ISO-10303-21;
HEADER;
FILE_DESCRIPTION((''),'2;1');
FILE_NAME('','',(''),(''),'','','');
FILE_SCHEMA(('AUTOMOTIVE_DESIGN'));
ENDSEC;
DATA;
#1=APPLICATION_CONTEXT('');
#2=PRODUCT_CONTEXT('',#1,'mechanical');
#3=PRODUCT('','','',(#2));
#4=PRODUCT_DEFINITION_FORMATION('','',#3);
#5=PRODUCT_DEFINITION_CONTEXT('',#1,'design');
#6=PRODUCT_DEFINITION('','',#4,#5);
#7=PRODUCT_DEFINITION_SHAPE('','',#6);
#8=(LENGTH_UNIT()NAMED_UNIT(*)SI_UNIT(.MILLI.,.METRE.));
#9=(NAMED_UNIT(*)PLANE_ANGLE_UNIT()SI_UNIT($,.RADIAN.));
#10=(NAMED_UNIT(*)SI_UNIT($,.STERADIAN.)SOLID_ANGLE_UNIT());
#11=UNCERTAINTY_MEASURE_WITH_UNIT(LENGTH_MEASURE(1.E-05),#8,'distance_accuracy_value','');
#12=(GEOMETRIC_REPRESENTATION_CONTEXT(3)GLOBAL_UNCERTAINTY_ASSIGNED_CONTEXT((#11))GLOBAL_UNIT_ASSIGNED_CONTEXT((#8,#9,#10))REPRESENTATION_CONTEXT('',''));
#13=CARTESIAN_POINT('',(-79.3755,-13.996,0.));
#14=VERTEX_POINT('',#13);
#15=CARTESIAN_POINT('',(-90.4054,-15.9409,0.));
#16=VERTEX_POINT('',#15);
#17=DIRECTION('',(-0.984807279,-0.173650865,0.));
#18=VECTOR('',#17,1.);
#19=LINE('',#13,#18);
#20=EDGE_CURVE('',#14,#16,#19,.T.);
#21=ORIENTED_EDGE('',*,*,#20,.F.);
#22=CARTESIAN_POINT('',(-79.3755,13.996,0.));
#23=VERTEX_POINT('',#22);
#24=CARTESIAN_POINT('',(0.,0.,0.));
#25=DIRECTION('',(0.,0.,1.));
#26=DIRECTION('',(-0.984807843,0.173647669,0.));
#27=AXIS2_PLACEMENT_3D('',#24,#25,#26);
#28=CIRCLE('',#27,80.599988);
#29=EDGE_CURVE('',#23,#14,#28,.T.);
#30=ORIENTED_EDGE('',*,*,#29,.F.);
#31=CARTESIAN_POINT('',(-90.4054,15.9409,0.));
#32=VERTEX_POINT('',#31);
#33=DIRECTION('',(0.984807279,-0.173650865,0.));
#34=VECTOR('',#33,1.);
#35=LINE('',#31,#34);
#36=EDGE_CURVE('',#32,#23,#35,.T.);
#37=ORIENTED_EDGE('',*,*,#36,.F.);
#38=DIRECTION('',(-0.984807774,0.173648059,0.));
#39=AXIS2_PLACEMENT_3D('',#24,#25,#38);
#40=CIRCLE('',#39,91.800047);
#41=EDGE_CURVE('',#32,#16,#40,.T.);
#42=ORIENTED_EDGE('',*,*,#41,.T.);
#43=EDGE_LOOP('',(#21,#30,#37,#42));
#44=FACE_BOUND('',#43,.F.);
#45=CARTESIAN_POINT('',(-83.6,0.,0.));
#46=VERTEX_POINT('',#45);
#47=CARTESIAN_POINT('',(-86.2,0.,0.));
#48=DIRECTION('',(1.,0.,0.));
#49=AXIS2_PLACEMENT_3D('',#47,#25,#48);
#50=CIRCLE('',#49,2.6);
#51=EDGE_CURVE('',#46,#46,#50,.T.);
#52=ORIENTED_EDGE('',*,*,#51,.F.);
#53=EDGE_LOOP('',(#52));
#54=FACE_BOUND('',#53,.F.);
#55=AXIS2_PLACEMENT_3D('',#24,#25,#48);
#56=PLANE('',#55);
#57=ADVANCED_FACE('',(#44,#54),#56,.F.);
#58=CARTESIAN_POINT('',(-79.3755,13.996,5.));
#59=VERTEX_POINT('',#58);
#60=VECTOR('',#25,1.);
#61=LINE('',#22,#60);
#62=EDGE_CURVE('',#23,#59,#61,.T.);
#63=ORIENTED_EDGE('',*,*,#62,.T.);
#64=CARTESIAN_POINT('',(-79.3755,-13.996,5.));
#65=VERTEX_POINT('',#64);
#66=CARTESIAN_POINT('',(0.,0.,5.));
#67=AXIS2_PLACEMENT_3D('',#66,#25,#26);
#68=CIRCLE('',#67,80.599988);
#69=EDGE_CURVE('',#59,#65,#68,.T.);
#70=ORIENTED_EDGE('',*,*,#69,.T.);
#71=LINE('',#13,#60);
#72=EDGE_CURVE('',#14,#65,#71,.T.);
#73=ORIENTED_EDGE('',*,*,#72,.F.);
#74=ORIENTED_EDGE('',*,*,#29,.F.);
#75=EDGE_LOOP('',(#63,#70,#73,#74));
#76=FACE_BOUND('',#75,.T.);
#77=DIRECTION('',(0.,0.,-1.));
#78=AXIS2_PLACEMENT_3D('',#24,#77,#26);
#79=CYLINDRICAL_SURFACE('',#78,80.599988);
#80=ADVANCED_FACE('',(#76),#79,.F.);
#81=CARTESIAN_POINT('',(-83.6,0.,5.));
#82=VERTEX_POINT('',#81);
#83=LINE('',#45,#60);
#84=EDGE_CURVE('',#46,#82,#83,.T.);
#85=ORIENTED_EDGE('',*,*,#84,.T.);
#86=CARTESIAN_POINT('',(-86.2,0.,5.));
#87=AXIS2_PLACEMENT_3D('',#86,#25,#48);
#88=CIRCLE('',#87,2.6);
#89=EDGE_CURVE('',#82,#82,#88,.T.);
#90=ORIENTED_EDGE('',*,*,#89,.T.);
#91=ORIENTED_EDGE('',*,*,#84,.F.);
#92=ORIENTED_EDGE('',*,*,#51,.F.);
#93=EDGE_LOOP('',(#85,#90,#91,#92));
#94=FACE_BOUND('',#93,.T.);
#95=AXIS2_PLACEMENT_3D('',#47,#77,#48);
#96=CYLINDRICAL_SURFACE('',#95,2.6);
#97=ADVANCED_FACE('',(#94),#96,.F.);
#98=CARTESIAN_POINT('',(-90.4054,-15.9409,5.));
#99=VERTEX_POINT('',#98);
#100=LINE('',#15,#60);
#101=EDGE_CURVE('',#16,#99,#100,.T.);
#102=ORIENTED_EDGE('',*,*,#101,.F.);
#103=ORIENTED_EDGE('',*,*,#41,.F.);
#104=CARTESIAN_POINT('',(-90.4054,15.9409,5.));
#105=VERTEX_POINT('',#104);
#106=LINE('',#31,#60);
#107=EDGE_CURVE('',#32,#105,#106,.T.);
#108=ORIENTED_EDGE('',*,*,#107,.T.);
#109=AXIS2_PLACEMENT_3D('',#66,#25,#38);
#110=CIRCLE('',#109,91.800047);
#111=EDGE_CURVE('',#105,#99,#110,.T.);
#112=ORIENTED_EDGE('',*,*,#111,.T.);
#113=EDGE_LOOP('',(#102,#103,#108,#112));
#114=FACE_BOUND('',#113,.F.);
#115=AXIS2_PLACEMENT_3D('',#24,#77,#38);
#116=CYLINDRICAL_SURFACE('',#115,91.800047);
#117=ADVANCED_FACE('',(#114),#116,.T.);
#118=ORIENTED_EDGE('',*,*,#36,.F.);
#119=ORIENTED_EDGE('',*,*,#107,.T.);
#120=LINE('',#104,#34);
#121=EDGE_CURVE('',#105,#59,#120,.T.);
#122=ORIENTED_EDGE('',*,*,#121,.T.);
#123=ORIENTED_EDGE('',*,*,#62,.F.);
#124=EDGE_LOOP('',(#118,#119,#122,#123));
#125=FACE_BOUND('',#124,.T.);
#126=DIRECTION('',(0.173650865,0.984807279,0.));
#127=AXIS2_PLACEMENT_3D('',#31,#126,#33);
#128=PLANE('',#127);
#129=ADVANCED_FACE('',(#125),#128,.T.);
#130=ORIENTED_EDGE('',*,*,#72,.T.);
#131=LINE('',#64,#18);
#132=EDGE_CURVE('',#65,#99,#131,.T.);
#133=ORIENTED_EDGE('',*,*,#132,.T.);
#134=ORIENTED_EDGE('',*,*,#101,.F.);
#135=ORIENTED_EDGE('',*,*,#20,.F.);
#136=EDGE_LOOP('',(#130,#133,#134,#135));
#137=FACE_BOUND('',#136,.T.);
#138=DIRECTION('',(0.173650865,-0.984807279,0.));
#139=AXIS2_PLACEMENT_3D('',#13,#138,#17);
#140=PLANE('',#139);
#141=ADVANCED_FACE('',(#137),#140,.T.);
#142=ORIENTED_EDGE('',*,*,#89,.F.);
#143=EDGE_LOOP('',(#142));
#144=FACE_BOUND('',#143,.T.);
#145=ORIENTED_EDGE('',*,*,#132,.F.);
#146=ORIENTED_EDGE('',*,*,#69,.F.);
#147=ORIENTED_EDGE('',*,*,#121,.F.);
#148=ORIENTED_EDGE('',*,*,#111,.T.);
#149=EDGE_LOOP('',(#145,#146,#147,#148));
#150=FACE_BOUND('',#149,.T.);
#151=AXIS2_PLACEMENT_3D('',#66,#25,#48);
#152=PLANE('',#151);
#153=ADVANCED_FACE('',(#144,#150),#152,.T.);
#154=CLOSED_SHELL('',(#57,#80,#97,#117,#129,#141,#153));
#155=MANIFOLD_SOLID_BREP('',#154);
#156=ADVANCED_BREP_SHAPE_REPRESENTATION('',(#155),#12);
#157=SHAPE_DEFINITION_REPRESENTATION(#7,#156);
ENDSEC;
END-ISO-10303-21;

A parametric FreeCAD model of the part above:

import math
import FreeCAD as App
import Part
import Sketcher
Q = App.Units.Quantity

doc = App.newDocument("Part")
body = doc.addObject("PartDesign::Body", "Body")

sketch1 = body.newObject("Sketcher::SketchObject", "Sketch")
sketch1.AttachmentSupport = (doc.getObject("XY_Plane"), [""])
sketch1.MapMode = "FlatFace"
sketch1.addGeometry([
    Part.LineSegment(App.Vector(-79.4, 14, 0), App.Vector(-90.4, 15.9, 0)),
    Part.ArcOfCircle(Part.Circle(App.Vector(0, 0, 0), App.Vector(0, 0, 1), 91.8), math.radians(170), math.radians(190)),
    Part.LineSegment(App.Vector(-90.4, -15.9, 0), App.Vector(-79.4, -14, 0)),
    Part.ArcOfCircle(Part.Circle(App.Vector(0, 0, 0), App.Vector(0, 0, 1), 80.6), math.radians(170), math.radians(190)),
    Part.Circle(App.Vector(-86.2, 0, 0), App.Vector(0, 0, 1), 2.6),
], False)
sketch1.addConstraint([
    Sketcher.Constraint("Coincident", 0, 2, 1, 1),
    Sketcher.Constraint("Coincident", 1, 2, 2, 1),
    Sketcher.Constraint("Coincident", 2, 2, 3, 2),
    Sketcher.Constraint("Coincident", 3, 1, 0, 1),
    Sketcher.Constraint("Coincident", 1, 3, -1, 1),
    Sketcher.Constraint("Coincident", 3, 3, -1, 1),
    Sketcher.Constraint("PointOnObject", 4, 3, -1),
    Sketcher.Constraint("Vertical", 0, 2, 1, 2),
    Sketcher.Constraint("Vertical", 2, 2, 3, 1),
    Sketcher.Constraint("Angle", 2, Q("10.0002 deg")),
    Sketcher.Constraint("Diameter", 4, 5.2),
    Sketcher.Constraint("Radius", 1, 91.8),
    Sketcher.Constraint("Radius", 3, 80.6),
    Sketcher.Constraint("DistanceX", 4, 3, -1, 1, 86.2),
    Sketcher.Constraint("DistanceY", -1, 1, 0, 2, 15.941),
])
pad1 = body.newObject("PartDesign::Pad", "Pad")
pad1.Profile = sketch1
pad1.Length = 5

doc.recompute()
